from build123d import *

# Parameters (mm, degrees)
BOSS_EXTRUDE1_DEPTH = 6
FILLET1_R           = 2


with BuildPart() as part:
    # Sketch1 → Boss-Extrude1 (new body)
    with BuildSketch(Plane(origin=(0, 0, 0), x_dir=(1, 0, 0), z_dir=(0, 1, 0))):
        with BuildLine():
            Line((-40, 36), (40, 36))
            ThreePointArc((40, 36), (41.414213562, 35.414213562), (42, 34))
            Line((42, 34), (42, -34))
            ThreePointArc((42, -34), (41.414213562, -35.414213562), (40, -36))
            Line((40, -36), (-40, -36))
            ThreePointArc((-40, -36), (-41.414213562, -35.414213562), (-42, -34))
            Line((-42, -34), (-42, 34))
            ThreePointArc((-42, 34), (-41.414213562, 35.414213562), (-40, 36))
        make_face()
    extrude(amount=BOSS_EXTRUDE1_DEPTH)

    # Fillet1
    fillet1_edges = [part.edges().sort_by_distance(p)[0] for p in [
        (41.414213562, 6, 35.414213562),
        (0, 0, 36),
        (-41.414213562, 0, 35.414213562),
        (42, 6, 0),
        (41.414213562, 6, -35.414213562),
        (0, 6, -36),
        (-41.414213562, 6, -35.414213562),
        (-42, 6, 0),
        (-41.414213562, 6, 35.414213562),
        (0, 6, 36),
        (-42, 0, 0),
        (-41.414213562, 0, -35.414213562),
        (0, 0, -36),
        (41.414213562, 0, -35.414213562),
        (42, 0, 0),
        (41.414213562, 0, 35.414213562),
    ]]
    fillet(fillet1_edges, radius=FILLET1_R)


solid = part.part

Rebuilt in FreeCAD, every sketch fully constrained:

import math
import FreeCAD as App
import Part
import Sketcher
Q = App.Units.Quantity


def edges_at(feature, points):
    """Names of the edges that pass closest to the given points."""
    edges = feature.Shape.Edges
    near = lambda p: min(range(len(edges)), key=lambda i: edges[i].distToShape(Part.Vertex(*p))[0])
    return sorted({f"Edge{near(p) + 1}" for p in points})

doc = App.newDocument("Part")
body = doc.addObject("PartDesign::Body", "Body")

# Sketch on XZ plane
sketch1 = doc.addObject("Sketcher::SketchObject", "Sketch")
body.addObject(sketch1)
sketch1.AttachmentSupport = (doc.XZ_Plane, [""])
sketch1.MapMode = "FlatFace"
sketch1.addGeometry([
    Part.LineSegment(App.Vector(40, -36, 0), App.Vector(-40, -36, 0)),  # 0
    Part.ArcOfCircle(Part.Circle(App.Vector(-40, -34, 0), App.Vector(0, 0, 1), 2), math.radians(-180), math.radians(-90)),  # 1
    Part.LineSegment(App.Vector(-42, -34, 0), App.Vector(-42, 34, 0)),  # 2
    Part.ArcOfCircle(Part.Circle(App.Vector(-40, 34, 0), App.Vector(0, 0, 1), 2), math.radians(90), math.radians(180)),  # 3
    Part.LineSegment(App.Vector(-40, 36, 0), App.Vector(40, 36, 0)),  # 4
    Part.ArcOfCircle(Part.Circle(App.Vector(40, 34, 0), App.Vector(0, 0, 1), 2), math.radians(0), math.radians(90)),  # 5
    Part.LineSegment(App.Vector(42, 34, 0), App.Vector(42, -34, 0)),  # 6
    Part.ArcOfCircle(Part.Circle(App.Vector(40, -34, 0), App.Vector(0, 0, 1), 2), math.radians(-90), math.radians(0)),  # 7
], False)
sketch1.addConstraint([
    Sketcher.Constraint("Tangent", 0, 2, 1, 2),
    Sketcher.Constraint("Tangent", 1, 1, 2, 1),
    Sketcher.Constraint("Tangent", 2, 2, 3, 2),
    Sketcher.Constraint("Tangent", 3, 1, 4, 1),
    Sketcher.Constraint("Tangent", 4, 2, 5, 2),
    Sketcher.Constraint("Tangent", 5, 1, 6, 1),
    Sketcher.Constraint("Tangent", 6, 2, 7, 2),
    Sketcher.Constraint("Tangent", 7, 1, 0, 1),
    Sketcher.Constraint("Horizontal", 0),
    Sketcher.Constraint("Vertical", 2),
    Sketcher.Constraint("Horizontal", 4),
    Sketcher.Constraint("Vertical", 6),
    Sketcher.Constraint("Equal", 1, 3),
    Sketcher.Constraint("Equal", 3, 5),
    Sketcher.Constraint("Equal", 5, 7),
    Sketcher.Constraint("Symmetric", 1, 3, 5, 3, -1, 1),
    Sketcher.Constraint("Radius", 1, Q("2 mm")),
    Sketcher.Constraint("DistanceX", 0, 2, 0, 1, Q("80 mm")),
    Sketcher.Constraint("DistanceY", 2, 1, 2, 2, Q("68 mm")),
])
pad1 = doc.addObject("PartDesign::Pad", "Pad")
body.addObject(pad1)
pad1.Profile = sketch1
pad1.Length = 6
pad1.Reversed = True
doc.recompute()

fillet = doc.addObject("PartDesign::Fillet", "Fillet")
body.addObject(fillet)
fillet.Base = (pad1, edges_at(pad1, [
    (41.414, 6, 35.414),
    (0, 0, 36),
    (-41.414, 0, 35.414),
    (42, 6, 0),
    (41.414, 6, -35.414),
    (0, 6, -36),
    (-41.414, 6, -35.414),
    (-42, 6, 0),
    (-41.414, 6, 35.414),
    (0, 6, 36),
    (-42, 0, 0),
    (-41.414, 0, -35.414),
    (0, 0, -36),
    (41.414, 0, -35.414),
    (42, 0, 0),
    (41.414, 0, 35.414),
]))
fillet.Radius = 2

doc.recompute()
